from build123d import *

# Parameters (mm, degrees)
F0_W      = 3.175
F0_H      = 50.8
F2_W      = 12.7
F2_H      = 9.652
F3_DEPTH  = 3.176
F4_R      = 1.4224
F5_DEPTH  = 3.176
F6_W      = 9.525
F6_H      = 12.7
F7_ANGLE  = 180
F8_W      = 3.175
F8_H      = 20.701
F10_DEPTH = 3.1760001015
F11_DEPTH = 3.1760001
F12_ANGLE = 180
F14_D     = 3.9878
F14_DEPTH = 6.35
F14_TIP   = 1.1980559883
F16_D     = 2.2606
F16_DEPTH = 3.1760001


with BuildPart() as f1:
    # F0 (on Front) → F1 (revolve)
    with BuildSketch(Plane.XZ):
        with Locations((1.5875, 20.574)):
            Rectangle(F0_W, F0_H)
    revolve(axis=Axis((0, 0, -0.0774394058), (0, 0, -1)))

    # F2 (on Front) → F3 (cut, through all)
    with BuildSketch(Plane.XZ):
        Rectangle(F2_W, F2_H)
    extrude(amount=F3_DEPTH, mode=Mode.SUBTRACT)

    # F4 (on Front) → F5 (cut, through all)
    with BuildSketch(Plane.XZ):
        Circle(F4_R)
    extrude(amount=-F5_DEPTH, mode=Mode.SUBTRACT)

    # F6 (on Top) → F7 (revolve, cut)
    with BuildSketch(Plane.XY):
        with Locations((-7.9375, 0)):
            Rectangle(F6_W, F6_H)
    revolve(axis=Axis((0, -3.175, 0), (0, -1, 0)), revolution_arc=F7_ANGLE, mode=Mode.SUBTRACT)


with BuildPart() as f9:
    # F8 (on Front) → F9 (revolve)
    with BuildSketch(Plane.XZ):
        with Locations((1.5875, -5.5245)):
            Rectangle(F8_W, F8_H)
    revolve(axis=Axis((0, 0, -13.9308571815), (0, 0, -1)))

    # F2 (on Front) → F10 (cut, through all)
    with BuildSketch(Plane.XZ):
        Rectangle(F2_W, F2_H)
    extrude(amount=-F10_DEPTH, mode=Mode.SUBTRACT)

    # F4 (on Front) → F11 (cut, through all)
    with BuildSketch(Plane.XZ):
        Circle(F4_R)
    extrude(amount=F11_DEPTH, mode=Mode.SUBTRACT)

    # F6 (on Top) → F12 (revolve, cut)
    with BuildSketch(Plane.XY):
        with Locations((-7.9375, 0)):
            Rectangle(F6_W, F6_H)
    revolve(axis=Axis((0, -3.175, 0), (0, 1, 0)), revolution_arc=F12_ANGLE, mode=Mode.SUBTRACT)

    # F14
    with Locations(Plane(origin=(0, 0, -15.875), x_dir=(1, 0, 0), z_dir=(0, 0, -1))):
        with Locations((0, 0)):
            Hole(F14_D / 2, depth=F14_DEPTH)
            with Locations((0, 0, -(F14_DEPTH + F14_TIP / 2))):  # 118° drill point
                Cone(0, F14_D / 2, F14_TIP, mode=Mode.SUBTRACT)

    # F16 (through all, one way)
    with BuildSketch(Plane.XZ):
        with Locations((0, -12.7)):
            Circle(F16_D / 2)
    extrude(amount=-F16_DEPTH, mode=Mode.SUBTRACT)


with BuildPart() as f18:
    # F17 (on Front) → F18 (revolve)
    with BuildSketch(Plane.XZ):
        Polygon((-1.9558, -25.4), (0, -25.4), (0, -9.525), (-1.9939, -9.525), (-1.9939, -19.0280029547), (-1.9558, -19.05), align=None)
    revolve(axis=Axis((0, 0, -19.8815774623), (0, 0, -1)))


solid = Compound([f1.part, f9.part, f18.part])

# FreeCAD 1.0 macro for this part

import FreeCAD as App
import Part
import Sketcher
Q = App.Units.Quantity

doc = App.newDocument("Part")
body = doc.addObject("PartDesign::Body", "Body")

sketch1 = body.newObject("Sketcher::SketchObject", "Sketch")
sketch1.AttachmentSupport = (doc.getObject("XZ_Plane"), [""])
sketch1.MapMode = "FlatFace"
sketch1.addGeometry([
    Part.LineSegment(App.Vector(0, 46, 0), App.Vector(0, -4.8, 0)),
    Part.LineSegment(App.Vector(0, -4.8, 0), App.Vector(3.2, -4.8, 0)),
    Part.LineSegment(App.Vector(3.2, -4.8, 0), App.Vector(3.2, 46, 0)),
    Part.LineSegment(App.Vector(3.2, 46, 0), App.Vector(0, 46, 0)),
], False)
sketch1.addConstraint([
    Sketcher.Constraint("Coincident", 0, 2, 1, 1),
    Sketcher.Constraint("Coincident", 1, 2, 2, 1),
    Sketcher.Constraint("Coincident", 2, 2, 3, 1),
    Sketcher.Constraint("Coincident", 3, 2, 0, 1),
    Sketcher.Constraint("Vertical", 0),
    Sketcher.Constraint("Horizontal", 1),
    Sketcher.Constraint("Vertical", 2),
    Sketcher.Constraint("Horizontal", 3),
    Sketcher.Constraint("PointOnObject", 0, 2, -2),
    Sketcher.Constraint("DistanceY", 0, 2, 0, 1, Q("2 in")),
    Sketcher.Constraint("DistanceX", 1, 1, 1, 2, Q("0.125 in")),
    Sketcher.Constraint("DistanceY", 0, 2, -1, 1, Q("0.19 in")),
])
revolution = body.newObject("PartDesign::Revolution", "Revolution")
revolution.Profile = sketch1
revolution.ReferenceAxis = (sketch1, ["V_Axis"])
revolution.Angle = 360

sketch2 = body.newObject("Sketcher::SketchObject", "Sketch001")
sketch2.AttachmentSupport = (doc.getObject("XZ_Plane"), [""])
sketch2.MapMode = "FlatFace"
sketch2.addGeometry([
    Part.LineSegment(App.Vector(-6, 5, 0), App.Vector(-6, -5, 0)),
    Part.LineSegment(App.Vector(-6, -5, 0), App.Vector(6, -5, 0)),
    Part.LineSegment(App.Vector(6, -5, 0), App.Vector(6, 5, 0)),
    Part.LineSegment(App.Vector(6, 5, 0), App.Vector(-6, 5, 0)),
], False)
sketch2.addConstraint([
    Sketcher.Constraint("Coincident", 0, 2, 1, 1),
    Sketcher.Constraint("Coincident", 1, 2, 2, 1),
    Sketcher.Constraint("Coincident", 2, 2, 3, 1),
    Sketcher.Constraint("Coincident", 3, 2, 0, 1),
    Sketcher.Constraint("Vertical", 0),
    Sketcher.Constraint("Horizontal", 1),
    Sketcher.Constraint("Vertical", 2),
    Sketcher.Constraint("Horizontal", 3),
    Sketcher.Constraint("Symmetric", 0, 2, 2, 2, -1, 1),
    Sketcher.Constraint("DistanceX", 1, 1, 1, 2, Q("0.5 in")),
    Sketcher.Constraint("DistanceY", 0, 2, 0, 1, Q("0.38 in")),
])
pocket1 = body.newObject("PartDesign::Pocket", "Pocket")
pocket1.Profile = sketch2
pocket1.Type = "ThroughAll"
pocket1.Reversed = True

sketch3 = body.newObject("Sketcher::SketchObject", "Sketch002")
sketch3.AttachmentSupport = (doc.getObject("XZ_Plane"), [""])
sketch3.MapMode = "FlatFace"
sketch3.addGeometry(Part.Circle(App.Vector(0, 0, 0), App.Vector(0, 0, 1), 1.4), False)
sketch3.addConstraint([
    Sketcher.Constraint("Coincident", 0, 3, -1, 1),
    Sketcher.Constraint("Diameter", 0, Q("0.112 in")),
])
pocket2 = body.newObject("PartDesign::Pocket", "Pocket001")
pocket2.Profile = sketch3
pocket2.Type = "ThroughAll"

sketch4 = body.newObject("Sketcher::SketchObject", "Sketch003")
sketch4.AttachmentSupport = (doc.getObject("XY_Plane"), [""])
sketch4.MapMode = "FlatFace"
sketch4.addGeometry([
    Part.LineSegment(App.Vector(-13, 6, 0), App.Vector(-13, -6, 0)),
    Part.LineSegment(App.Vector(-13, -6, 0), App.Vector(-3, -6, 0)),
    Part.LineSegment(App.Vector(-3, -6, 0), App.Vector(-3, 6, 0)),
    Part.LineSegment(App.Vector(-3, 6, 0), App.Vector(-13, 6, 0)),
], False)
sketch4.addConstraint([
    Sketcher.Constraint("Coincident", 0, 2, 1, 1),
    Sketcher.Constraint("Coincident", 1, 2, 2, 1),
    Sketcher.Constraint("Coincident", 2, 2, 3, 1),
    Sketcher.Constraint("Coincident", 3, 2, 0, 1),
    Sketcher.Constraint("Vertical", 0),
    Sketcher.Constraint("Horizontal", 1),
    Sketcher.Constraint("Vertical", 2),
    Sketcher.Constraint("Horizontal", 3),
    Sketcher.Constraint("DistanceY", 0, 2, 0, 1, Q("0.5 in")),
    Sketcher.Constraint("DistanceX", 0, 2, -1, 1, Q("0.5 in")),
    Sketcher.Constraint("DistanceX", 1, 1, 1, 2, Q("0.375 in")),
    Sketcher.Constraint("DistanceY", 0, 2, -1, 1, Q("0.25 in")),
])
groove = body.newObject("PartDesign::Groove", "Groove")
groove.Profile = sketch4
groove.ReferenceAxis = (sketch4, ["V_Axis"])
groove.Angle = 180
groove.Reversed = True
body2 = doc.addObject("PartDesign::Body", "Body001")

sketch5 = body2.newObject("Sketcher::SketchObject", "Sketch004")
sketch5.AttachmentSupport = (doc.getObject("XZ_Plane001"), [""])
sketch5.MapMode = "FlatFace"
sketch5.addGeometry([
    Part.LineSegment(App.Vector(0, 4.8, 0), App.Vector(0, -15.9, 0)),
    Part.LineSegment(App.Vector(0, -15.9, 0), App.Vector(3.2, -15.9, 0)),
    Part.LineSegment(App.Vector(3.2, -15.9, 0), App.Vector(3.2, 4.8, 0)),
    Part.LineSegment(App.Vector(3.2, 4.8, 0), App.Vector(0, 4.8, 0)),
], False)
sketch5.addConstraint([
    Sketcher.Constraint("Coincident", 0, 2, 1, 1),
    Sketcher.Constraint("Coincident", 1, 2, 2, 1),
    Sketcher.Constraint("Coincident", 2, 2, 3, 1),
    Sketcher.Constraint("Coincident", 3, 2, 0, 1),
    Sketcher.Constraint("Vertical", 0),
    Sketcher.Constraint("Horizontal", 1),
    Sketcher.Constraint("Vertical", 2),
    Sketcher.Constraint("Horizontal", 3),
    Sketcher.Constraint("PointOnObject", 0, 2, -2),
    Sketcher.Constraint("DistanceX", 1, 1, 1, 2, Q("0.125 in")),
    Sketcher.Constraint("DistanceY", 0, 2, 0, 1, Q("0.815 in")),
    Sketcher.Constraint("DistanceY", -1, 1, 2, 2, Q("0.19 in")),
])
revolution2 = body2.newObject("PartDesign::Revolution", "Revolution001")
revolution2.Profile = sketch5
revolution2.ReferenceAxis = (sketch5, ["V_Axis"])
revolution2.Angle = 360

sketch6 = body2.newObject("Sketcher::SketchObject", "Sketch005")
sketch6.AttachmentSupport = (doc.getObject("XZ_Plane001"), [""])
sketch6.MapMode = "FlatFace"
sketch6.addGeometry([
    Part.LineSegment(App.Vector(-6, 5, 0), App.Vector(-6, -5, 0)),
    Part.LineSegment(App.Vector(-6, -5, 0), App.Vector(6, -5, 0)),
    Part.LineSegment(App.Vector(6, -5, 0), App.Vector(6, 5, 0)),
    Part.LineSegment(App.Vector(6, 5, 0), App.Vector(-6, 5, 0)),
], False)
sketch6.addConstraint([
    Sketcher.Constraint("Coincident", 0, 2, 1, 1),
    Sketcher.Constraint("Coincident", 1, 2, 2, 1),
    Sketcher.Constraint("Coincident", 2, 2, 3, 1),
    Sketcher.Constraint("Coincident", 3, 2, 0, 1),
    Sketcher.Constraint("Vertical", 0),
    Sketcher.Constraint("Horizontal", 1),
    Sketcher.Constraint("Vertical", 2),
    Sketcher.Constraint("Horizontal", 3),
    Sketcher.Constraint("Symmetric", 0, 2, 2, 2, -1, 1),
    Sketcher.Constraint("DistanceX", 1, 1, 1, 2, Q("0.5 in")),
    Sketcher.Constraint("DistanceY", 0, 2, 0, 1, Q("0.38 in")),
])
pocket3 = body2.newObject("PartDesign::Pocket", "Pocket002")
pocket3.Profile = sketch6
pocket3.Type = "ThroughAll"

sketch7 = body2.newObject("Sketcher::SketchObject", "Sketch006")
sketch7.AttachmentSupport = (doc.getObject("XZ_Plane001"), [""])
sketch7.MapMode = "FlatFace"
sketch7.addGeometry(Part.Circle(App.Vector(0, 0, 0), App.Vector(0, 0, 1), 1.4), False)
sketch7.addConstraint([
    Sketcher.Constraint("Coincident", 0, 3, -1, 1),
    Sketcher.Constraint("Diameter", 0, Q("0.112 in")),
])
pocket4 = body2.newObject("PartDesign::Pocket", "Pocket003")
pocket4.Profile = sketch7
pocket4.Type = "ThroughAll"
pocket4.Reversed = True

sketch8 = body2.newObject("Sketcher::SketchObject", "Sketch007")
sketch8.AttachmentSupport = (doc.getObject("XY_Plane001"), [""])
sketch8.MapMode = "FlatFace"
sketch8.addGeometry([
    Part.LineSegment(App.Vector(-13, 6, 0), App.Vector(-13, -6, 0)),
    Part.LineSegment(App.Vector(-13, -6, 0), App.Vector(-3, -6, 0)),
    Part.LineSegment(App.Vector(-3, -6, 0), App.Vector(-3, 6, 0)),
    Part.LineSegment(App.Vector(-3, 6, 0), App.Vector(-13, 6, 0)),
], False)
sketch8.addConstraint([
    Sketcher.Constraint("Coincident", 0, 2, 1, 1),
    Sketcher.Constraint("Coincident", 1, 2, 2, 1),
    Sketcher.Constraint("Coincident", 2, 2, 3, 1),
    Sketcher.Constraint("Coincident", 3, 2, 0, 1),
    Sketcher.Constraint("Vertical", 0),
    Sketcher.Constraint("Horizontal", 1),
    Sketcher.Constraint("Vertical", 2),
    Sketcher.Constraint("Horizontal", 3),
    Sketcher.Constraint("DistanceY", 0, 2, 0, 1, Q("0.5 in")),
    Sketcher.Constraint("DistanceX", 0, 2, -1, 1, Q("0.5 in")),
    Sketcher.Constraint("DistanceX", 1, 1, 1, 2, Q("0.375 in")),
    Sketcher.Constraint("DistanceY", 0, 2, -1, 1, Q("0.25 in")),
])
groove2 = body2.newObject("PartDesign::Groove", "Groove001")
groove2.Profile = sketch8
groove2.ReferenceAxis = (sketch8, ["V_Axis"])
groove2.Angle = 180

sketch9 = body2.newObject("Sketcher::SketchObject", "Sketch008")
sketch9.AttachmentSupport = (doc.getObject("XY_Plane001"), [""])
sketch9.MapMode = "FlatFace"
sketch9.AttachmentOffset = App.Placement(App.Vector(0, 0, -0.625 * 25.4), App.Rotation())
sketch9.addGeometry(Part.Circle(App.Vector(0, 0, 0), App.Vector(0, 0, 1), 2), False)
sketch9.addConstraint([
    Sketcher.Constraint("Coincident", 0, 3, -1, 1),
    Sketcher.Constraint("Diameter", 0, Q("0.157 in")),
])
doc.recompute()
hole = body2.newObject("PartDesign::Hole", "Hole")
hole.Profile = sketch9
hole.ThreadType = "None"
hole.Diameter = Q("0.157 in")
hole.DepthType = "Dimension"
hole.Depth = Q("0.25 in")
hole.DrillPoint = "Angled"
hole.DrillPointAngle = 118
hole.Reversed = True

sketch10 = body2.newObject("Sketcher::SketchObject", "Sketch009")
sketch10.AttachmentSupport = (doc.getObject("XZ_Plane001"), [""])
sketch10.MapMode = "FlatFace"
sketch10.addGeometry(Part.Circle(App.Vector(0, -12.7, 0), App.Vector(0, 0, 1), 1.1), False)
sketch10.addConstraint([
    Sketcher.Constraint("PointOnObject", 0, 3, -2),
    Sketcher.Constraint("Diameter", 0, Q("0.089 in")),
    Sketcher.Constraint("DistanceY", 0, 3, -1, 1, Q("0.5 in")),
])
pocket5 = body2.newObject("PartDesign::Pocket", "Pocket004")
pocket5.Profile = sketch10
pocket5.Type = "ThroughAll"
body3 = doc.addObject("PartDesign::Body", "Body002")

sketch11 = body3.newObject("Sketcher::SketchObject", "Sketch010")
sketch11.AttachmentSupport = (doc.getObject("XZ_Plane002"), [""])
sketch11.MapMode = "FlatFace"
sketch11.addGeometry([
    Part.LineSegment(App.Vector(-1.956, -25.4, 0), App.Vector(0, -25.4, 0)),
    Part.LineSegment(App.Vector(0, -25.4, 0), App.Vector(0, -9.525, 0)),
    Part.LineSegment(App.Vector(0, -9.525, 0), App.Vector(-1.994, -9.525, 0)),
    Part.LineSegment(App.Vector(-1.994, -9.525, 0), App.Vector(-1.994, -19.028, 0)),
    Part.LineSegment(App.Vector(-1.994, -19.028, 0), App.Vector(-1.956, -19.05, 0)),
    Part.LineSegment(App.Vector(-1.956, -19.05, 0), App.Vector(-1.956, -25.4, 0)),
], False)
sketch11.addConstraint([
    Sketcher.Constraint("Coincident", 0, 2, 1, 1),
    Sketcher.Constraint("Coincident", 1, 2, 2, 1),
    Sketcher.Constraint("Coincident", 2, 2, 3, 1),
    Sketcher.Constraint("Coincident", 3, 2, 4, 1),
    Sketcher.Constraint("Coincident", 4, 2, 5, 1),
    Sketcher.Constraint("Coincident", 5, 2, 0, 1),
    Sketcher.Constraint("Horizontal", 0),
    Sketcher.Constraint("Vertical", 1),
    Sketcher.Constraint("Horizontal", 2),
    Sketcher.Constraint("Vertical", 3),
    Sketcher.Constraint("Vertical", 5),
    Sketcher.Constraint("PointOnObject", 0, 2, -2),
    Sketcher.Constraint("DistanceY", 0, 2, -1, 1, Q("1 in")),
    Sketcher.Constraint("Angle", 4, Q("-30 deg")),
    Sketcher.Constraint("DistanceY", 5, 2, 5, 1, Q("0.25 in")),
    Sketcher.Constraint("DistanceX", 0, 1, 0, 2, Q("0.077 in")),
    Sketcher.Constraint("DistanceY", 1, 1, 1, 2, Q("0.625 in")),
    Sketcher.Constraint("DistanceX", 2, 2, 2, 1, Q("0.0785 in")),
])
revolution3 = body3.newObject("PartDesign::Revolution", "Revolution002")
revolution3.Profile = sketch11
revolution3.ReferenceAxis = (sketch11, ["V_Axis"])
revolution3.Angle = 360

doc.recompute()
